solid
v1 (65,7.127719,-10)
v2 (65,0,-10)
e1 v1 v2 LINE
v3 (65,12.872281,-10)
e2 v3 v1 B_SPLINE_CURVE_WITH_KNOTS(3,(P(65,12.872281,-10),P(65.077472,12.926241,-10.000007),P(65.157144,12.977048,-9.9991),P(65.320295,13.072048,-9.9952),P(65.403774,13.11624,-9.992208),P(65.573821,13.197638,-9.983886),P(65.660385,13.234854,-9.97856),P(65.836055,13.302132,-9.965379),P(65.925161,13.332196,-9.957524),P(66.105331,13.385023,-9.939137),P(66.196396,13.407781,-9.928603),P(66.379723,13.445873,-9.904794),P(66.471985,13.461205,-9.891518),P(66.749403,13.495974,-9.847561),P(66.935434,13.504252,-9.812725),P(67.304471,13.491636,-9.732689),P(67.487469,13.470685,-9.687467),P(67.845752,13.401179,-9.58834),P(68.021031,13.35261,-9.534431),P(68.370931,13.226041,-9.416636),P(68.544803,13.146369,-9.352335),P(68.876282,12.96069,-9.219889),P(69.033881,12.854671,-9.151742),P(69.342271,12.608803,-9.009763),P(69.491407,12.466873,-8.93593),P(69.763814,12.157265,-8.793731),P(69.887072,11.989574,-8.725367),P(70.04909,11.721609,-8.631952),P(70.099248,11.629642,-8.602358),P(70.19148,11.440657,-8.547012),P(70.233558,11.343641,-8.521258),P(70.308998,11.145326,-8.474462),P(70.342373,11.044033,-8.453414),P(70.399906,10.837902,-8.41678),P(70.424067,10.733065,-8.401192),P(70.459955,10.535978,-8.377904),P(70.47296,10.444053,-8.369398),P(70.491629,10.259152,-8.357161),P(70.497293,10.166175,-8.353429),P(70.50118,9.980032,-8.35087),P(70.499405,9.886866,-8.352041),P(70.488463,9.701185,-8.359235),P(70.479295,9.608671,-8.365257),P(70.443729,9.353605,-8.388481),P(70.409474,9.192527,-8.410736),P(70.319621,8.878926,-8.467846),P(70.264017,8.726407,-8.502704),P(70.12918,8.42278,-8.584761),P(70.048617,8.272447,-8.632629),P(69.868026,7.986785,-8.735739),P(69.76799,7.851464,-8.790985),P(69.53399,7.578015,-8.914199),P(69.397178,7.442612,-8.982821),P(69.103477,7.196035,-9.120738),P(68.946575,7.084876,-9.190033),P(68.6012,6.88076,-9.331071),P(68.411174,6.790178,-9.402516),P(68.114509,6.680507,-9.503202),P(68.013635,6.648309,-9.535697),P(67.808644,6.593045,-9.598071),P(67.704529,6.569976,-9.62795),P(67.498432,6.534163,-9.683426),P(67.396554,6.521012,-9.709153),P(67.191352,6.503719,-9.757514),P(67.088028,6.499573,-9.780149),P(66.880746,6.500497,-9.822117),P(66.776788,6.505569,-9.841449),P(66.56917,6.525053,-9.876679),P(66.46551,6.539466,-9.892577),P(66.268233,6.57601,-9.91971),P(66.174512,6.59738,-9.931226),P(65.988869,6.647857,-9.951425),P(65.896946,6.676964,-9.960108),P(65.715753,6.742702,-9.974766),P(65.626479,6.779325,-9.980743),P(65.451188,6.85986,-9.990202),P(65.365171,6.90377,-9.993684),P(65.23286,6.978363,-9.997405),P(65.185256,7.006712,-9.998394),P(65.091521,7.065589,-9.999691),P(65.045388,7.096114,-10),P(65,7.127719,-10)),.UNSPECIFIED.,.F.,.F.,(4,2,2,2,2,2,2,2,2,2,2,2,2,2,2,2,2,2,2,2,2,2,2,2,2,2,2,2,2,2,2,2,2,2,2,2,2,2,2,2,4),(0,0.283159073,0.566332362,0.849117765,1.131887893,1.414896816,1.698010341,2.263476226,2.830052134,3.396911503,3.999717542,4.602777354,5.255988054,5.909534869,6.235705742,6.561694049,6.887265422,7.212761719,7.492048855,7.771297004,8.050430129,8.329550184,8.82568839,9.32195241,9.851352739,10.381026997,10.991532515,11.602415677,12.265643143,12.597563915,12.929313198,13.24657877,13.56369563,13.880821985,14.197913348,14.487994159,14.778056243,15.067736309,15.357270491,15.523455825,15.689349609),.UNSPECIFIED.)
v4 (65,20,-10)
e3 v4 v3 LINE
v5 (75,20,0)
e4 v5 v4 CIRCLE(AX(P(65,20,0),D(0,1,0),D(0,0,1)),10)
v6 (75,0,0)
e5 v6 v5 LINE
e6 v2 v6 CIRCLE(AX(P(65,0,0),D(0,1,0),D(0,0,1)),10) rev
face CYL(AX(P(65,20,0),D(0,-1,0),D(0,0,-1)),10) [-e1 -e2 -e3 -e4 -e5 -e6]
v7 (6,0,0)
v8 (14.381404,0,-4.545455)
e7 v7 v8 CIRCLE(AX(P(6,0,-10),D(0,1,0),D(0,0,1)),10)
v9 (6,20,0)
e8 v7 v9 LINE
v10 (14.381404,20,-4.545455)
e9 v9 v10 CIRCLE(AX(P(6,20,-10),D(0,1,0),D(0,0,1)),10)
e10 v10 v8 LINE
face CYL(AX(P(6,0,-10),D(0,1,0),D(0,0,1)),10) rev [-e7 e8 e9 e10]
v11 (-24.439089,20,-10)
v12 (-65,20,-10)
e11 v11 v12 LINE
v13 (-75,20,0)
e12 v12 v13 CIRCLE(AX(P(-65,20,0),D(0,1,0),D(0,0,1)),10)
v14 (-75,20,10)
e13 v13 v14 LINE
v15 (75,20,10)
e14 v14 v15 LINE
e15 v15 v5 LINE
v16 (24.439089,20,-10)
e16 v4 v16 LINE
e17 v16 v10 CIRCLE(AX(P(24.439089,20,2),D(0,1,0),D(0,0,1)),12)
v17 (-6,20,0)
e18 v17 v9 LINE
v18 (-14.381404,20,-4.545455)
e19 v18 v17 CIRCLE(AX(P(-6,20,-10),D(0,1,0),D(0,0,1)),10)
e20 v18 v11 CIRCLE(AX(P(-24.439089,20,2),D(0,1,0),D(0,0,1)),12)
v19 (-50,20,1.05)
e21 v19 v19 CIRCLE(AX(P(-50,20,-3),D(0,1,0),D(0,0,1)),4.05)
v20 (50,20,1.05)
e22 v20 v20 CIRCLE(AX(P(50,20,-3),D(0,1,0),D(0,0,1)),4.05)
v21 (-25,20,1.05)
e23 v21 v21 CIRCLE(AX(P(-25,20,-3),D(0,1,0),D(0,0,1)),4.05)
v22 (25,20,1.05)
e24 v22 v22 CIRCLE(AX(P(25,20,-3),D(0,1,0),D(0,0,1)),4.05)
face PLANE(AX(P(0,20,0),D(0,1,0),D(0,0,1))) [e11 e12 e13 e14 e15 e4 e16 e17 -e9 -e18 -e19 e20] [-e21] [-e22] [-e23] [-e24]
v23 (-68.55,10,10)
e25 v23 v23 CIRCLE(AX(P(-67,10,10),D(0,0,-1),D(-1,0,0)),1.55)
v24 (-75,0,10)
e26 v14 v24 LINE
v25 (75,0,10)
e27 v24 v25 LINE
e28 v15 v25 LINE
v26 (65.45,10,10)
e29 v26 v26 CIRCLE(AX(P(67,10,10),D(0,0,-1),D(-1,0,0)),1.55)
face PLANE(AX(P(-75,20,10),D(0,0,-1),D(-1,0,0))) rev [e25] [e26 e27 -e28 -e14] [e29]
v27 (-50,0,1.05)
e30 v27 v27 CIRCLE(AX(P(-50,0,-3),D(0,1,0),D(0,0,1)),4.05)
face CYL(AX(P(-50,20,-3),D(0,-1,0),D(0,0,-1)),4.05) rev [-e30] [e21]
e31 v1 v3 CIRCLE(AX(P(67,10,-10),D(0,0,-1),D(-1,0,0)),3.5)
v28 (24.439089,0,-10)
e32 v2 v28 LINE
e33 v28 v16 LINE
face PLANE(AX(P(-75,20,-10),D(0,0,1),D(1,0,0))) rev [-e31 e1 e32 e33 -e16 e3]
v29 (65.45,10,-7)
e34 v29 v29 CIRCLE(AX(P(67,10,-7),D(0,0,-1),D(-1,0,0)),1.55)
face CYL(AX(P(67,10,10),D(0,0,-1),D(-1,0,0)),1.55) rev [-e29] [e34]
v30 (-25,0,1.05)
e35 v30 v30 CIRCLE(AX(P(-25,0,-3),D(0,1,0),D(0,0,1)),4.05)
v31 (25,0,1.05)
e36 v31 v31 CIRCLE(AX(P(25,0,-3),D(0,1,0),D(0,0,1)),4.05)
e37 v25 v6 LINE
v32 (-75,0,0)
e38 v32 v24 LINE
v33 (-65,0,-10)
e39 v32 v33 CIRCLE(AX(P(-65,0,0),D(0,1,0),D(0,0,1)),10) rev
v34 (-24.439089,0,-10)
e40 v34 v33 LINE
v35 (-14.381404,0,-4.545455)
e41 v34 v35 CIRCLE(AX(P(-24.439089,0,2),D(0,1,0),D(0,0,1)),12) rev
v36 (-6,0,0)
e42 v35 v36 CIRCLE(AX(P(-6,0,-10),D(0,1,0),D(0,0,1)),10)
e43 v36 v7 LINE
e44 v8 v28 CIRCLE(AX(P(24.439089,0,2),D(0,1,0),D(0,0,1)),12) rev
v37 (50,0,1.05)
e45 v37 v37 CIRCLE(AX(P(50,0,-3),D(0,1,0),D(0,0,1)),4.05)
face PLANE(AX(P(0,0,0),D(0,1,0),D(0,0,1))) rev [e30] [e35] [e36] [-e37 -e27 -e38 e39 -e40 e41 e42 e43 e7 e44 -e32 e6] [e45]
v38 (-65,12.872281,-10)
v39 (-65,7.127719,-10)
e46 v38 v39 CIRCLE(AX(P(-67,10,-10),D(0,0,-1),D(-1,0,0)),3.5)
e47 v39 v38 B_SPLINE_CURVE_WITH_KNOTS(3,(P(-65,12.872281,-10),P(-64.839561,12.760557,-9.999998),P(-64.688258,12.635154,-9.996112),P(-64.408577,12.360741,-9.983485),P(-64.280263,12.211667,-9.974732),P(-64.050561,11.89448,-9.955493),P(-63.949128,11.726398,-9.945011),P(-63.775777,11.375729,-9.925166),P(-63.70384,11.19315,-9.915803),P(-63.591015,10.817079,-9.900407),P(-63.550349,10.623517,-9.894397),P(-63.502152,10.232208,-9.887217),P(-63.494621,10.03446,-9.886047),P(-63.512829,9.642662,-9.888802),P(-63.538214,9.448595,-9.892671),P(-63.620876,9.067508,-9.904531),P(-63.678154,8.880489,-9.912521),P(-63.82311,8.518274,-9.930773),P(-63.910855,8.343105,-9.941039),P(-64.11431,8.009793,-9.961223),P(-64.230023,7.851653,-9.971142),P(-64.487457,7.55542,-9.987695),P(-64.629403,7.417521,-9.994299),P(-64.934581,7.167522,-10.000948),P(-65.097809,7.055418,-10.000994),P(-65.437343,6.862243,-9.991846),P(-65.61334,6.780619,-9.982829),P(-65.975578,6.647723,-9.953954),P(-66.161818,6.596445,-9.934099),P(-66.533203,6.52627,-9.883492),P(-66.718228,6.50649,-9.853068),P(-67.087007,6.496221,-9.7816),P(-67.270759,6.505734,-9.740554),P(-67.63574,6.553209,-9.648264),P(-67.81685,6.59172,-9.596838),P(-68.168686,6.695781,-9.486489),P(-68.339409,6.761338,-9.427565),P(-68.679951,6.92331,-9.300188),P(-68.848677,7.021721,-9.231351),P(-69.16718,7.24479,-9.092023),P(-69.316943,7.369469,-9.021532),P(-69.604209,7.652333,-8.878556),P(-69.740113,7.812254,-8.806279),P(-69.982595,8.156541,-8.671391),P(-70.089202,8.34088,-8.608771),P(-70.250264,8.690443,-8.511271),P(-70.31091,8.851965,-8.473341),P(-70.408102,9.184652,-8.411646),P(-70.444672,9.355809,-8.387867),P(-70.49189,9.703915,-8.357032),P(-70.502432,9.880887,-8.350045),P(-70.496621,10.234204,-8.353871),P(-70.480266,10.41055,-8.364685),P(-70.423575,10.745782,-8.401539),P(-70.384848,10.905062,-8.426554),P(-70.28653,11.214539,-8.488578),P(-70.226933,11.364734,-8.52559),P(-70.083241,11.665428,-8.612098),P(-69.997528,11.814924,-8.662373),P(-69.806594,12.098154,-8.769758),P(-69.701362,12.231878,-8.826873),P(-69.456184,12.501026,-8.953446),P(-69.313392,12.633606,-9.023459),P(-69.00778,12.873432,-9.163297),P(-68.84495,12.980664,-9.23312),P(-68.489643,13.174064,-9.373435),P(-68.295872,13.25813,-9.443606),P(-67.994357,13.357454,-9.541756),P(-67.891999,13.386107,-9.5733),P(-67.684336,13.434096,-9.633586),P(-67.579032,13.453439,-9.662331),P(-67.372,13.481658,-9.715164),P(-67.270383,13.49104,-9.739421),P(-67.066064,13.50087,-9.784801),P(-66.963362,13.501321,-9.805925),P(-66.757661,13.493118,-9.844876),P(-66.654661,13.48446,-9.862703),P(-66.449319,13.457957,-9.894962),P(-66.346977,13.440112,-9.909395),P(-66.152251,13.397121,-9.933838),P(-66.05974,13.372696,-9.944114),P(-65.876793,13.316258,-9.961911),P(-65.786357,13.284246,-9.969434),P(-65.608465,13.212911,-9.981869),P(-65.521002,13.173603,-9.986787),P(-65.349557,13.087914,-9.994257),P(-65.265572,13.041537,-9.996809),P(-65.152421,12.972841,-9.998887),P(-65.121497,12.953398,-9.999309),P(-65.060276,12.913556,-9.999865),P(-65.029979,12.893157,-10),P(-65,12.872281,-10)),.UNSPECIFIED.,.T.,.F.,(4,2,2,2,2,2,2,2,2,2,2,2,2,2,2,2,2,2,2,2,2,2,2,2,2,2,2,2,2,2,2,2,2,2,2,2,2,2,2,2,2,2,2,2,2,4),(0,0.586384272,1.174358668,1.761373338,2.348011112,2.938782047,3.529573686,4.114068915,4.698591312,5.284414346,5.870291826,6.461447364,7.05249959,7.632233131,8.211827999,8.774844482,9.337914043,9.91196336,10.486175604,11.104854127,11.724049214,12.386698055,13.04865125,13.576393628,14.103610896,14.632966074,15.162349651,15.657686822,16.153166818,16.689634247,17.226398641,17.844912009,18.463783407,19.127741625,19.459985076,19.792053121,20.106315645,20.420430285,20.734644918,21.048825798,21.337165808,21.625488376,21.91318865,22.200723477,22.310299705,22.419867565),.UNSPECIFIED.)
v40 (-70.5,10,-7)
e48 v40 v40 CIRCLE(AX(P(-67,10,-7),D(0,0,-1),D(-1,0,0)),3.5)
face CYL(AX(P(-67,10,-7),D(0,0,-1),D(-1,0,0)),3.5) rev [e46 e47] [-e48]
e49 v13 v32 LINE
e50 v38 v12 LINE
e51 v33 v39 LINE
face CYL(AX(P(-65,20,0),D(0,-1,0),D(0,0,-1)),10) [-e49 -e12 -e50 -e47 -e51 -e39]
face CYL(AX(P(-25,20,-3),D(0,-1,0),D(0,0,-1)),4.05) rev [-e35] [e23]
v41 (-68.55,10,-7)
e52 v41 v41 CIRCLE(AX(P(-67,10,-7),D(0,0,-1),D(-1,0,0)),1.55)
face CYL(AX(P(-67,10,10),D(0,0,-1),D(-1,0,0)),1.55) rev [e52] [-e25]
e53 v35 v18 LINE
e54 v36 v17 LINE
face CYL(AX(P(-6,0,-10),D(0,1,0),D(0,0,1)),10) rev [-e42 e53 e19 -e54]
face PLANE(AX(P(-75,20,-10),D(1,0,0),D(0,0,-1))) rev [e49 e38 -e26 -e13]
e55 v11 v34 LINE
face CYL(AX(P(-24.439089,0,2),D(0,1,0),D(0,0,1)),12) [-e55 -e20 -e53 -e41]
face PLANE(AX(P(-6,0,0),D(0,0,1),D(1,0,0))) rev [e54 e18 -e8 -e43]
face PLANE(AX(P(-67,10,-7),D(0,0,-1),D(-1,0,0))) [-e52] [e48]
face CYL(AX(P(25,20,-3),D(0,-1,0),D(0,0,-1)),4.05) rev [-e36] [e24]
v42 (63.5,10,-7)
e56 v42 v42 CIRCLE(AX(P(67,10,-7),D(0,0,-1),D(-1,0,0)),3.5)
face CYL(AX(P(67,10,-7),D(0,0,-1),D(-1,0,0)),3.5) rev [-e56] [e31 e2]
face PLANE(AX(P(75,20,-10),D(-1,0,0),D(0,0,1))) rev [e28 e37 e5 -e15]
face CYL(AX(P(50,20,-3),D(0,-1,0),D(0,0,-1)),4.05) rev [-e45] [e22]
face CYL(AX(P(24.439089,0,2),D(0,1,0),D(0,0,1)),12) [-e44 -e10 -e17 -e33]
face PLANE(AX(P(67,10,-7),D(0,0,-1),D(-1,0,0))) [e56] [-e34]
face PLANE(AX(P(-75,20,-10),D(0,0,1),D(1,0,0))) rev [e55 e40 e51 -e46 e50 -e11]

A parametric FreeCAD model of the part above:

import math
import FreeCAD as App
import Part
import Sketcher
Q = App.Units.Quantity


def edges_at(feature, points):
    """Names of the edges that pass closest to the given points."""
    edges = feature.Shape.Edges
    near = lambda p: min(range(len(edges)), key=lambda i: edges[i].distToShape(Part.Vertex(*p))[0])
    return sorted({f"Edge{near(p) + 1}" for p in points})

doc = App.newDocument("Part")
body = doc.addObject("PartDesign::Body", "Body")

# Sketch on XZ plane
sketch1 = body.newObject("Sketcher::SketchObject", "Sketch")
sketch1.AttachmentSupport = (doc.getObject("XZ_Plane"), [""])
sketch1.MapMode = "FlatFace"
sketch1.addGeometry([
    Part.LineSegment(App.Vector(-75, -10, 0), App.Vector(-75, 10, 0)),  # 0
    Part.LineSegment(App.Vector(-75, 10, 0), App.Vector(75, 10, 0)),  # 1
    Part.LineSegment(App.Vector(75, 10, 0), App.Vector(75, -10, 0)),  # 2
    Part.LineSegment(App.Vector(75, -10, 0), App.Vector(-75, -10, 0)),  # 3
    Part.Circle(App.Vector(-50, -3, 0), App.Vector(0, 0, 1), 4),  # 4
    Part.Circle(App.Vector(-25, -3, 0), App.Vector(0, 0, 1), 4),  # 5
    Part.Circle(App.Vector(25, -3, 0), App.Vector(0, 0, 1), 4),  # 6
    Part.Circle(App.Vector(50, -3, 0), App.Vector(0, 0, 1), 4),  # 7
], False)
sketch1.addConstraint([
    Sketcher.Constraint("Coincident", 0, 2, 1, 1),
    Sketcher.Constraint("Coincident", 1, 2, 2, 1),
    Sketcher.Constraint("Coincident", 2, 2, 3, 1),
    Sketcher.Constraint("Coincident", 3, 2, 0, 1),
    Sketcher.Constraint("Vertical", 0),
    Sketcher.Constraint("Horizontal", 1),
    Sketcher.Constraint("Vertical", 2),
    Sketcher.Constraint("Horizontal", 3),
    Sketcher.Constraint("Equal", 4, 5),
    Sketcher.Constraint("Equal", 5, 6),
    Sketcher.Constraint("Equal", 6, 7),
    Sketcher.Constraint("Symmetric", 0, 2, 2, 2, -1, 1),
    Sketcher.Constraint("Symmetric", 5, 3, 6, 3, -2),
    Sketcher.Constraint("Symmetric", 4, 3, 7, 3, -2),
    Sketcher.Constraint("Horizontal", 4, 3, 5, 3),
    Sketcher.Constraint("Diameter", 4, Q("8.1 mm")),
    Sketcher.Constraint("DistanceX", 1, 1, 1, 2, Q("150 mm")),
    Sketcher.Constraint("DistanceY", 0, 1, 0, 2, Q("20 mm")),
    Sketcher.Constraint("DistanceX", 4, 3, -1, 1, Q("50 mm")),
    Sketcher.Constraint("DistanceY", 4, 3, -1, 1, Q("3 mm")),
    Sketcher.Constraint("DistanceX", 5, 3, -1, 1, Q("25 mm")),
])
pad1 = body.newObject("PartDesign::Pad", "Pad")
pad1.Profile = sketch1
pad1.Length = 20
pad1.Reversed = True
doc.recompute()

fillet = body.newObject("PartDesign::Fillet", "Fillet")
fillet.Base = (pad1, edges_at(pad1, [(-75, 10, -10), (75, 10, -10)]))
fillet.Radius = 10

# Sketch on XY plane
sketch2 = body.newObject("Sketcher::SketchObject", "Sketch001")
sketch2.AttachmentSupport = (doc.getObject("XY_Plane"), [""])
sketch2.MapMode = "FlatFace"
sketch2.AttachmentOffset = App.Placement(App.Vector(0, 0, -10), App.Rotation())
sketch2.addGeometry([
    Part.Circle(App.Vector(67, 10, 0), App.Vector(0, 0, 1), 1.6),
    Part.Circle(App.Vector(-67, 10, 0), App.Vector(0, 0, 1), 1.6),
], False)
sketch2.addConstraint([
    Sketcher.Constraint("Equal", 0, 1),
    Sketcher.Constraint("Symmetric", 0, 3, 1, 3, -2),
    Sketcher.Constraint("Diameter", 0, Q("3.1 mm")),
    Sketcher.Constraint("DistanceX", -1, 1, 0, 3, Q("67 mm")),
    Sketcher.Constraint("DistanceY", -1, 1, 0, 3, Q("10 mm")),
])
pocket1 = body.newObject("PartDesign::Pocket", "Pocket")
pocket1.Profile = sketch2
pocket1.Type = "ThroughAll"
pocket1.Reversed = True

# Sketch on XY plane
sketch3 = body.newObject("Sketcher::SketchObject", "Sketch002")
sketch3.AttachmentSupport = (doc.getObject("XY_Plane"), [""])
sketch3.MapMode = "FlatFace"
sketch3.AttachmentOffset = App.Placement(App.Vector(0, 0, -10), App.Rotation())
sketch3.addGeometry([
    Part.Circle(App.Vector(67, 10, 0), App.Vector(0, 0, 1), 3.5),
    Part.Circle(App.Vector(67, 10, 0), App.Vector(0, 0, 1), 1.6),
    Part.Circle(App.Vector(-67, 10, 0), App.Vector(0, 0, 1), 3.5),
    Part.Circle(App.Vector(-67, 10, 0), App.Vector(0, 0, 1), 1.6),
], False)
sketch3.addConstraint([
    Sketcher.Constraint("Coincident", 1, 3, 0, 3),
    Sketcher.Constraint("Coincident", 3, 3, 2, 3),
    Sketcher.Constraint("Equal", 0, 2),
    Sketcher.Constraint("Equal", 1, 3),
    Sketcher.Constraint("Symmetric", 0, 3, 2, 3, -2),
    Sketcher.Constraint("Diameter", 0, Q("7 mm")),
    Sketcher.Constraint("Diameter", 1, Q("3.1 mm")),
    Sketcher.Constraint("DistanceX", -1, 1, 0, 3, Q("67 mm")),
    Sketcher.Constraint("DistanceY", -1, 1, 0, 3, Q("10 mm")),
])
pocket2 = body.newObject("PartDesign::Pocket", "Pocket001")
pocket2.Profile = sketch3
pocket2.Length = 3
pocket2.Reversed = True

# Sketch on XZ plane
sketch4 = body.newObject("Sketcher::SketchObject", "Sketch003")
sketch4.AttachmentSupport = (doc.getObject("XZ_Plane"), [""])
sketch4.MapMode = "FlatFace"
sketch4.AttachmentOffset = App.Placement(App.Vector(0, 0, -20), App.Rotation())
sketch4.addGeometry([
    Part.LineSegment(App.Vector(6, -20, 0), App.Vector(-6, -20, 0)),
    Part.ArcOfCircle(Part.Circle(App.Vector(-6, -10, 0), App.Vector(0, 0, 1), 10), math.radians(90), math.radians(270)),
    Part.LineSegment(App.Vector(-6, 0, 0), App.Vector(6, 0, 0)),
    Part.ArcOfCircle(Part.Circle(App.Vector(6, -10, 0), App.Vector(0, 0, 1), 10), math.radians(-90), math.radians(90)),
], False)
sketch4.addConstraint([
    Sketcher.Constraint("Tangent", 0, 2, 1, 2),
    Sketcher.Constraint("Tangent", 1, 1, 2, 1),
    Sketcher.Constraint("Tangent", 2, 2, 3, 2),
    Sketcher.Constraint("Tangent", 3, 1, 0, 1),
    Sketcher.Constraint("Horizontal", 0),
    Sketcher.Constraint("Horizontal", 2),
    Sketcher.Constraint("Symmetric", 1, 1, 2, 2, -1, 1),
    Sketcher.Constraint("Radius", 1, Q("10 mm")),
    Sketcher.Constraint("DistanceX", 0, 2, 0, 1, Q("12 mm")),
])
pocket3 = body.newObject("PartDesign::Pocket", "Pocket002")
pocket3.Profile = sketch4
pocket3.Type = "ThroughAll"
pocket3.Reversed = True
doc.recompute()

fillet2 = body.newObject("PartDesign::Fillet", "Fillet001")
fillet2.Base = (pocket3, edges_at(pocket3, [(16, 10, -10), (-16, 10, -10)]))
fillet2.Radius = 12

doc.recompute()
